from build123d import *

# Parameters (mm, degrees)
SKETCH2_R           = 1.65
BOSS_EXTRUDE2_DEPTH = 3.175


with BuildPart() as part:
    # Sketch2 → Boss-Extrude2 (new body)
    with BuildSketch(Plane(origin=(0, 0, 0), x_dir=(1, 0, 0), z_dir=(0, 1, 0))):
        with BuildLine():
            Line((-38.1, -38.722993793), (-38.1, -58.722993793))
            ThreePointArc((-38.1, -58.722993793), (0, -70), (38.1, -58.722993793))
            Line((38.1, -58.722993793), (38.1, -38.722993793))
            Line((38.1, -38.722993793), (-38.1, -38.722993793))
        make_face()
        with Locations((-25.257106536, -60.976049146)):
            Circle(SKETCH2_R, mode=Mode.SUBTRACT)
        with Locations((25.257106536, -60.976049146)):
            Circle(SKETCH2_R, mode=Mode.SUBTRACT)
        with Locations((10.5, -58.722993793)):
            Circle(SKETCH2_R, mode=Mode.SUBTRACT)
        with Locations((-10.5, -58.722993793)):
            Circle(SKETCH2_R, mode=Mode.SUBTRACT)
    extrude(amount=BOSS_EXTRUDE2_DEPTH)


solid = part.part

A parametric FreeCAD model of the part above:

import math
import FreeCAD as App
import Part
import Sketcher

V = App.Vector
Q = App.Units.Quantity

doc = App.newDocument("Part")
body = doc.addObject("PartDesign::Body", "Body")

sketch1 = doc.addObject("Sketcher::SketchObject", "Sketch")
body.addObject(sketch1)
sketch1.AttachmentSupport = (doc.XZ_Plane, [""])
sketch1.MapMode = "FlatFace"
sketch1.addGeometry([
    Part.LineSegment(V(-38.1, 38.7, 0), V(-38.1, 58.7, 0)),
    Part.ArcOfCircle(Part.Circle(V(0, 0, 0), V(0, 0, 1), 70), math.radians(57), math.radians(123)),
    Part.LineSegment(V(38.1, 58.7, 0), V(38.1, 38.7, 0)),
    Part.LineSegment(V(38.1, 38.7, 0), V(-38.1, 38.7, 0)),
    Part.Circle(V(-25.3, 61, 0), V(0, 0, 1), 1.6),
    Part.Circle(V(25.3, 61, 0), V(0, 0, 1), 1.6),
    Part.Circle(V(-10.5, 58.7, 0), V(0, 0, 1), 1.6),
    Part.Circle(V(10.5, 58.7, 0), V(0, 0, 1), 1.6),
], False)
sketch1.addConstraint([
    Sketcher.Constraint("Coincident", 0, 2, 1, 2),
    Sketcher.Constraint("Coincident", 1, 1, 2, 1),
    Sketcher.Constraint("Coincident", 2, 2, 3, 1),
    Sketcher.Constraint("Coincident", 3, 2, 0, 1),
    Sketcher.Constraint("Vertical", 0),
    Sketcher.Constraint("Vertical", 2),
    Sketcher.Constraint("Horizontal", 3),
    Sketcher.Constraint("Coincident", 1, 3, -1, 1),
    Sketcher.Constraint("Equal", 4, 5),
    Sketcher.Constraint("Equal", 5, 6),
    Sketcher.Constraint("Equal", 6, 7),
    Sketcher.Constraint("Symmetric", 4, 3, 5, 3, -2),
    Sketcher.Constraint("Symmetric", 6, 3, 7, 3, -2),
    Sketcher.Constraint("Horizontal", 7, 3, 0, 2),
    Sketcher.Constraint("Horizontal", 0, 2, 1, 1),
    Sketcher.Constraint("Radius", 1, Q("70 mm")),
    Sketcher.Constraint("Diameter", 4, Q("3.3 mm")),
    Sketcher.Constraint("DistanceY", 0, 1, 0, 2, Q("20 mm")),
    Sketcher.Constraint("DistanceX", 3, 2, 3, 1, Q("76.2 mm")),
    Sketcher.Constraint("DistanceX", 6, 3, 7, 3, Q("21 mm")),
    Sketcher.Constraint("DistanceY", -1, 1, 4, 3, Q("60.976049 mm")),
    Sketcher.Constraint("DistanceX", 4, 3, -1, 1, Q("25.257107 mm")),
])
pad1 = doc.addObject("PartDesign::Pad", "Pad")
body.addObject(pad1)
pad1.Profile = sketch1
pad1.Length = 3.175
pad1.Reversed = True

doc.recompute()
